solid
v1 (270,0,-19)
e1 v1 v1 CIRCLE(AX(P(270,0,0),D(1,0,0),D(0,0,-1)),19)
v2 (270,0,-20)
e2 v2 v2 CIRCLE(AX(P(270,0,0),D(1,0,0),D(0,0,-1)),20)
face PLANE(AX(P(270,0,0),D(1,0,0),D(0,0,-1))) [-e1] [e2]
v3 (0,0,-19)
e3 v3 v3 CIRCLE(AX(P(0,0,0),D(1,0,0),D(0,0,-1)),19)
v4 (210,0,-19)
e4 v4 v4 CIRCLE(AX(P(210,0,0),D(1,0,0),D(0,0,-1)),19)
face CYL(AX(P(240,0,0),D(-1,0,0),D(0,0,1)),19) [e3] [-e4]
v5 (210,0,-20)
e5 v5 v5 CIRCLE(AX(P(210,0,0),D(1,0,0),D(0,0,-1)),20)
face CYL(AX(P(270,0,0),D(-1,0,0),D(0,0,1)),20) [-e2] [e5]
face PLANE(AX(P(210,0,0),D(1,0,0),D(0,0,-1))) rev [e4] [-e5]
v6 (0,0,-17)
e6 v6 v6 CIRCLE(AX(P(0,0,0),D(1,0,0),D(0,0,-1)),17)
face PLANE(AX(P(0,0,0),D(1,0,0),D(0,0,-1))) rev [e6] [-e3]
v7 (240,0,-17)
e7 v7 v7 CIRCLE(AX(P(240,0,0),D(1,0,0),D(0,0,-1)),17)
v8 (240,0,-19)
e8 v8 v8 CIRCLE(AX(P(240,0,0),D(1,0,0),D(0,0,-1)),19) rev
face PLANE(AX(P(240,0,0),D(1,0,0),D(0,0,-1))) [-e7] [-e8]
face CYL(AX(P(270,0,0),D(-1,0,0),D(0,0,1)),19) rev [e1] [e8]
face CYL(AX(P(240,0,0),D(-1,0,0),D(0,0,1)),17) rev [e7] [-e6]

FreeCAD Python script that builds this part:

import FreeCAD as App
import Part
import Sketcher

V = App.Vector
Q = App.Units.Quantity

doc = App.newDocument("Part")
body = doc.addObject("PartDesign::Body", "Body")

sketch1 = doc.addObject("Sketcher::SketchObject", "Sketch")
body.addObject(sketch1)
sketch1.AttachmentSupport = (doc.YZ_Plane, [""])
sketch1.MapMode = "FlatFace"
sketch1.addGeometry([
    Part.Circle(V(0, 0, 0), V(0, 0, 1), 19),
    Part.Circle(V(0, 0, 0), V(0, 0, 1), 17),
], False)
sketch1.addConstraint([
    Sketcher.Constraint("Coincident", 0, 3, -1, 1),
    Sketcher.Constraint("Coincident", 1, 3, -1, 1),
    Sketcher.Constraint("Diameter", 0, Q("38 mm")),
    Sketcher.Constraint("Diameter", 1, Q("34 mm")),
])
pad1 = doc.addObject("PartDesign::Pad", "Pad")
body.addObject(pad1)
pad1.Profile = sketch1
pad1.Length = 240

sketch2 = doc.addObject("Sketcher::SketchObject", "Sketch001")
body.addObject(sketch2)
sketch2.AttachmentSupport = (doc.YZ_Plane, [""])
sketch2.MapMode = "FlatFace"
sketch2.AttachmentOffset = App.Placement(V(0, 0, 240), App.Rotation())
sketch2.addGeometry([
    Part.Circle(V(0, 0, 0), V(0, 0, 1), 20),
    Part.Circle(V(0, 0, 0), V(0, 0, 1), 19),
], False)
sketch2.addConstraint([
    Sketcher.Constraint("Coincident", 0, 3, -1, 1),
    Sketcher.Constraint("Coincident", 1, 3, -1, 1),
    Sketcher.Constraint("Diameter", 0, Q("40 mm")),
    Sketcher.Constraint("Diameter", 1, Q("38 mm")),
])
pad2 = doc.addObject("PartDesign::Pad", "Pad001")
body.addObject(pad2)
pad2.Profile = sketch2
pad2.Length = 60
pad2.Midplane = True

doc.recompute()
